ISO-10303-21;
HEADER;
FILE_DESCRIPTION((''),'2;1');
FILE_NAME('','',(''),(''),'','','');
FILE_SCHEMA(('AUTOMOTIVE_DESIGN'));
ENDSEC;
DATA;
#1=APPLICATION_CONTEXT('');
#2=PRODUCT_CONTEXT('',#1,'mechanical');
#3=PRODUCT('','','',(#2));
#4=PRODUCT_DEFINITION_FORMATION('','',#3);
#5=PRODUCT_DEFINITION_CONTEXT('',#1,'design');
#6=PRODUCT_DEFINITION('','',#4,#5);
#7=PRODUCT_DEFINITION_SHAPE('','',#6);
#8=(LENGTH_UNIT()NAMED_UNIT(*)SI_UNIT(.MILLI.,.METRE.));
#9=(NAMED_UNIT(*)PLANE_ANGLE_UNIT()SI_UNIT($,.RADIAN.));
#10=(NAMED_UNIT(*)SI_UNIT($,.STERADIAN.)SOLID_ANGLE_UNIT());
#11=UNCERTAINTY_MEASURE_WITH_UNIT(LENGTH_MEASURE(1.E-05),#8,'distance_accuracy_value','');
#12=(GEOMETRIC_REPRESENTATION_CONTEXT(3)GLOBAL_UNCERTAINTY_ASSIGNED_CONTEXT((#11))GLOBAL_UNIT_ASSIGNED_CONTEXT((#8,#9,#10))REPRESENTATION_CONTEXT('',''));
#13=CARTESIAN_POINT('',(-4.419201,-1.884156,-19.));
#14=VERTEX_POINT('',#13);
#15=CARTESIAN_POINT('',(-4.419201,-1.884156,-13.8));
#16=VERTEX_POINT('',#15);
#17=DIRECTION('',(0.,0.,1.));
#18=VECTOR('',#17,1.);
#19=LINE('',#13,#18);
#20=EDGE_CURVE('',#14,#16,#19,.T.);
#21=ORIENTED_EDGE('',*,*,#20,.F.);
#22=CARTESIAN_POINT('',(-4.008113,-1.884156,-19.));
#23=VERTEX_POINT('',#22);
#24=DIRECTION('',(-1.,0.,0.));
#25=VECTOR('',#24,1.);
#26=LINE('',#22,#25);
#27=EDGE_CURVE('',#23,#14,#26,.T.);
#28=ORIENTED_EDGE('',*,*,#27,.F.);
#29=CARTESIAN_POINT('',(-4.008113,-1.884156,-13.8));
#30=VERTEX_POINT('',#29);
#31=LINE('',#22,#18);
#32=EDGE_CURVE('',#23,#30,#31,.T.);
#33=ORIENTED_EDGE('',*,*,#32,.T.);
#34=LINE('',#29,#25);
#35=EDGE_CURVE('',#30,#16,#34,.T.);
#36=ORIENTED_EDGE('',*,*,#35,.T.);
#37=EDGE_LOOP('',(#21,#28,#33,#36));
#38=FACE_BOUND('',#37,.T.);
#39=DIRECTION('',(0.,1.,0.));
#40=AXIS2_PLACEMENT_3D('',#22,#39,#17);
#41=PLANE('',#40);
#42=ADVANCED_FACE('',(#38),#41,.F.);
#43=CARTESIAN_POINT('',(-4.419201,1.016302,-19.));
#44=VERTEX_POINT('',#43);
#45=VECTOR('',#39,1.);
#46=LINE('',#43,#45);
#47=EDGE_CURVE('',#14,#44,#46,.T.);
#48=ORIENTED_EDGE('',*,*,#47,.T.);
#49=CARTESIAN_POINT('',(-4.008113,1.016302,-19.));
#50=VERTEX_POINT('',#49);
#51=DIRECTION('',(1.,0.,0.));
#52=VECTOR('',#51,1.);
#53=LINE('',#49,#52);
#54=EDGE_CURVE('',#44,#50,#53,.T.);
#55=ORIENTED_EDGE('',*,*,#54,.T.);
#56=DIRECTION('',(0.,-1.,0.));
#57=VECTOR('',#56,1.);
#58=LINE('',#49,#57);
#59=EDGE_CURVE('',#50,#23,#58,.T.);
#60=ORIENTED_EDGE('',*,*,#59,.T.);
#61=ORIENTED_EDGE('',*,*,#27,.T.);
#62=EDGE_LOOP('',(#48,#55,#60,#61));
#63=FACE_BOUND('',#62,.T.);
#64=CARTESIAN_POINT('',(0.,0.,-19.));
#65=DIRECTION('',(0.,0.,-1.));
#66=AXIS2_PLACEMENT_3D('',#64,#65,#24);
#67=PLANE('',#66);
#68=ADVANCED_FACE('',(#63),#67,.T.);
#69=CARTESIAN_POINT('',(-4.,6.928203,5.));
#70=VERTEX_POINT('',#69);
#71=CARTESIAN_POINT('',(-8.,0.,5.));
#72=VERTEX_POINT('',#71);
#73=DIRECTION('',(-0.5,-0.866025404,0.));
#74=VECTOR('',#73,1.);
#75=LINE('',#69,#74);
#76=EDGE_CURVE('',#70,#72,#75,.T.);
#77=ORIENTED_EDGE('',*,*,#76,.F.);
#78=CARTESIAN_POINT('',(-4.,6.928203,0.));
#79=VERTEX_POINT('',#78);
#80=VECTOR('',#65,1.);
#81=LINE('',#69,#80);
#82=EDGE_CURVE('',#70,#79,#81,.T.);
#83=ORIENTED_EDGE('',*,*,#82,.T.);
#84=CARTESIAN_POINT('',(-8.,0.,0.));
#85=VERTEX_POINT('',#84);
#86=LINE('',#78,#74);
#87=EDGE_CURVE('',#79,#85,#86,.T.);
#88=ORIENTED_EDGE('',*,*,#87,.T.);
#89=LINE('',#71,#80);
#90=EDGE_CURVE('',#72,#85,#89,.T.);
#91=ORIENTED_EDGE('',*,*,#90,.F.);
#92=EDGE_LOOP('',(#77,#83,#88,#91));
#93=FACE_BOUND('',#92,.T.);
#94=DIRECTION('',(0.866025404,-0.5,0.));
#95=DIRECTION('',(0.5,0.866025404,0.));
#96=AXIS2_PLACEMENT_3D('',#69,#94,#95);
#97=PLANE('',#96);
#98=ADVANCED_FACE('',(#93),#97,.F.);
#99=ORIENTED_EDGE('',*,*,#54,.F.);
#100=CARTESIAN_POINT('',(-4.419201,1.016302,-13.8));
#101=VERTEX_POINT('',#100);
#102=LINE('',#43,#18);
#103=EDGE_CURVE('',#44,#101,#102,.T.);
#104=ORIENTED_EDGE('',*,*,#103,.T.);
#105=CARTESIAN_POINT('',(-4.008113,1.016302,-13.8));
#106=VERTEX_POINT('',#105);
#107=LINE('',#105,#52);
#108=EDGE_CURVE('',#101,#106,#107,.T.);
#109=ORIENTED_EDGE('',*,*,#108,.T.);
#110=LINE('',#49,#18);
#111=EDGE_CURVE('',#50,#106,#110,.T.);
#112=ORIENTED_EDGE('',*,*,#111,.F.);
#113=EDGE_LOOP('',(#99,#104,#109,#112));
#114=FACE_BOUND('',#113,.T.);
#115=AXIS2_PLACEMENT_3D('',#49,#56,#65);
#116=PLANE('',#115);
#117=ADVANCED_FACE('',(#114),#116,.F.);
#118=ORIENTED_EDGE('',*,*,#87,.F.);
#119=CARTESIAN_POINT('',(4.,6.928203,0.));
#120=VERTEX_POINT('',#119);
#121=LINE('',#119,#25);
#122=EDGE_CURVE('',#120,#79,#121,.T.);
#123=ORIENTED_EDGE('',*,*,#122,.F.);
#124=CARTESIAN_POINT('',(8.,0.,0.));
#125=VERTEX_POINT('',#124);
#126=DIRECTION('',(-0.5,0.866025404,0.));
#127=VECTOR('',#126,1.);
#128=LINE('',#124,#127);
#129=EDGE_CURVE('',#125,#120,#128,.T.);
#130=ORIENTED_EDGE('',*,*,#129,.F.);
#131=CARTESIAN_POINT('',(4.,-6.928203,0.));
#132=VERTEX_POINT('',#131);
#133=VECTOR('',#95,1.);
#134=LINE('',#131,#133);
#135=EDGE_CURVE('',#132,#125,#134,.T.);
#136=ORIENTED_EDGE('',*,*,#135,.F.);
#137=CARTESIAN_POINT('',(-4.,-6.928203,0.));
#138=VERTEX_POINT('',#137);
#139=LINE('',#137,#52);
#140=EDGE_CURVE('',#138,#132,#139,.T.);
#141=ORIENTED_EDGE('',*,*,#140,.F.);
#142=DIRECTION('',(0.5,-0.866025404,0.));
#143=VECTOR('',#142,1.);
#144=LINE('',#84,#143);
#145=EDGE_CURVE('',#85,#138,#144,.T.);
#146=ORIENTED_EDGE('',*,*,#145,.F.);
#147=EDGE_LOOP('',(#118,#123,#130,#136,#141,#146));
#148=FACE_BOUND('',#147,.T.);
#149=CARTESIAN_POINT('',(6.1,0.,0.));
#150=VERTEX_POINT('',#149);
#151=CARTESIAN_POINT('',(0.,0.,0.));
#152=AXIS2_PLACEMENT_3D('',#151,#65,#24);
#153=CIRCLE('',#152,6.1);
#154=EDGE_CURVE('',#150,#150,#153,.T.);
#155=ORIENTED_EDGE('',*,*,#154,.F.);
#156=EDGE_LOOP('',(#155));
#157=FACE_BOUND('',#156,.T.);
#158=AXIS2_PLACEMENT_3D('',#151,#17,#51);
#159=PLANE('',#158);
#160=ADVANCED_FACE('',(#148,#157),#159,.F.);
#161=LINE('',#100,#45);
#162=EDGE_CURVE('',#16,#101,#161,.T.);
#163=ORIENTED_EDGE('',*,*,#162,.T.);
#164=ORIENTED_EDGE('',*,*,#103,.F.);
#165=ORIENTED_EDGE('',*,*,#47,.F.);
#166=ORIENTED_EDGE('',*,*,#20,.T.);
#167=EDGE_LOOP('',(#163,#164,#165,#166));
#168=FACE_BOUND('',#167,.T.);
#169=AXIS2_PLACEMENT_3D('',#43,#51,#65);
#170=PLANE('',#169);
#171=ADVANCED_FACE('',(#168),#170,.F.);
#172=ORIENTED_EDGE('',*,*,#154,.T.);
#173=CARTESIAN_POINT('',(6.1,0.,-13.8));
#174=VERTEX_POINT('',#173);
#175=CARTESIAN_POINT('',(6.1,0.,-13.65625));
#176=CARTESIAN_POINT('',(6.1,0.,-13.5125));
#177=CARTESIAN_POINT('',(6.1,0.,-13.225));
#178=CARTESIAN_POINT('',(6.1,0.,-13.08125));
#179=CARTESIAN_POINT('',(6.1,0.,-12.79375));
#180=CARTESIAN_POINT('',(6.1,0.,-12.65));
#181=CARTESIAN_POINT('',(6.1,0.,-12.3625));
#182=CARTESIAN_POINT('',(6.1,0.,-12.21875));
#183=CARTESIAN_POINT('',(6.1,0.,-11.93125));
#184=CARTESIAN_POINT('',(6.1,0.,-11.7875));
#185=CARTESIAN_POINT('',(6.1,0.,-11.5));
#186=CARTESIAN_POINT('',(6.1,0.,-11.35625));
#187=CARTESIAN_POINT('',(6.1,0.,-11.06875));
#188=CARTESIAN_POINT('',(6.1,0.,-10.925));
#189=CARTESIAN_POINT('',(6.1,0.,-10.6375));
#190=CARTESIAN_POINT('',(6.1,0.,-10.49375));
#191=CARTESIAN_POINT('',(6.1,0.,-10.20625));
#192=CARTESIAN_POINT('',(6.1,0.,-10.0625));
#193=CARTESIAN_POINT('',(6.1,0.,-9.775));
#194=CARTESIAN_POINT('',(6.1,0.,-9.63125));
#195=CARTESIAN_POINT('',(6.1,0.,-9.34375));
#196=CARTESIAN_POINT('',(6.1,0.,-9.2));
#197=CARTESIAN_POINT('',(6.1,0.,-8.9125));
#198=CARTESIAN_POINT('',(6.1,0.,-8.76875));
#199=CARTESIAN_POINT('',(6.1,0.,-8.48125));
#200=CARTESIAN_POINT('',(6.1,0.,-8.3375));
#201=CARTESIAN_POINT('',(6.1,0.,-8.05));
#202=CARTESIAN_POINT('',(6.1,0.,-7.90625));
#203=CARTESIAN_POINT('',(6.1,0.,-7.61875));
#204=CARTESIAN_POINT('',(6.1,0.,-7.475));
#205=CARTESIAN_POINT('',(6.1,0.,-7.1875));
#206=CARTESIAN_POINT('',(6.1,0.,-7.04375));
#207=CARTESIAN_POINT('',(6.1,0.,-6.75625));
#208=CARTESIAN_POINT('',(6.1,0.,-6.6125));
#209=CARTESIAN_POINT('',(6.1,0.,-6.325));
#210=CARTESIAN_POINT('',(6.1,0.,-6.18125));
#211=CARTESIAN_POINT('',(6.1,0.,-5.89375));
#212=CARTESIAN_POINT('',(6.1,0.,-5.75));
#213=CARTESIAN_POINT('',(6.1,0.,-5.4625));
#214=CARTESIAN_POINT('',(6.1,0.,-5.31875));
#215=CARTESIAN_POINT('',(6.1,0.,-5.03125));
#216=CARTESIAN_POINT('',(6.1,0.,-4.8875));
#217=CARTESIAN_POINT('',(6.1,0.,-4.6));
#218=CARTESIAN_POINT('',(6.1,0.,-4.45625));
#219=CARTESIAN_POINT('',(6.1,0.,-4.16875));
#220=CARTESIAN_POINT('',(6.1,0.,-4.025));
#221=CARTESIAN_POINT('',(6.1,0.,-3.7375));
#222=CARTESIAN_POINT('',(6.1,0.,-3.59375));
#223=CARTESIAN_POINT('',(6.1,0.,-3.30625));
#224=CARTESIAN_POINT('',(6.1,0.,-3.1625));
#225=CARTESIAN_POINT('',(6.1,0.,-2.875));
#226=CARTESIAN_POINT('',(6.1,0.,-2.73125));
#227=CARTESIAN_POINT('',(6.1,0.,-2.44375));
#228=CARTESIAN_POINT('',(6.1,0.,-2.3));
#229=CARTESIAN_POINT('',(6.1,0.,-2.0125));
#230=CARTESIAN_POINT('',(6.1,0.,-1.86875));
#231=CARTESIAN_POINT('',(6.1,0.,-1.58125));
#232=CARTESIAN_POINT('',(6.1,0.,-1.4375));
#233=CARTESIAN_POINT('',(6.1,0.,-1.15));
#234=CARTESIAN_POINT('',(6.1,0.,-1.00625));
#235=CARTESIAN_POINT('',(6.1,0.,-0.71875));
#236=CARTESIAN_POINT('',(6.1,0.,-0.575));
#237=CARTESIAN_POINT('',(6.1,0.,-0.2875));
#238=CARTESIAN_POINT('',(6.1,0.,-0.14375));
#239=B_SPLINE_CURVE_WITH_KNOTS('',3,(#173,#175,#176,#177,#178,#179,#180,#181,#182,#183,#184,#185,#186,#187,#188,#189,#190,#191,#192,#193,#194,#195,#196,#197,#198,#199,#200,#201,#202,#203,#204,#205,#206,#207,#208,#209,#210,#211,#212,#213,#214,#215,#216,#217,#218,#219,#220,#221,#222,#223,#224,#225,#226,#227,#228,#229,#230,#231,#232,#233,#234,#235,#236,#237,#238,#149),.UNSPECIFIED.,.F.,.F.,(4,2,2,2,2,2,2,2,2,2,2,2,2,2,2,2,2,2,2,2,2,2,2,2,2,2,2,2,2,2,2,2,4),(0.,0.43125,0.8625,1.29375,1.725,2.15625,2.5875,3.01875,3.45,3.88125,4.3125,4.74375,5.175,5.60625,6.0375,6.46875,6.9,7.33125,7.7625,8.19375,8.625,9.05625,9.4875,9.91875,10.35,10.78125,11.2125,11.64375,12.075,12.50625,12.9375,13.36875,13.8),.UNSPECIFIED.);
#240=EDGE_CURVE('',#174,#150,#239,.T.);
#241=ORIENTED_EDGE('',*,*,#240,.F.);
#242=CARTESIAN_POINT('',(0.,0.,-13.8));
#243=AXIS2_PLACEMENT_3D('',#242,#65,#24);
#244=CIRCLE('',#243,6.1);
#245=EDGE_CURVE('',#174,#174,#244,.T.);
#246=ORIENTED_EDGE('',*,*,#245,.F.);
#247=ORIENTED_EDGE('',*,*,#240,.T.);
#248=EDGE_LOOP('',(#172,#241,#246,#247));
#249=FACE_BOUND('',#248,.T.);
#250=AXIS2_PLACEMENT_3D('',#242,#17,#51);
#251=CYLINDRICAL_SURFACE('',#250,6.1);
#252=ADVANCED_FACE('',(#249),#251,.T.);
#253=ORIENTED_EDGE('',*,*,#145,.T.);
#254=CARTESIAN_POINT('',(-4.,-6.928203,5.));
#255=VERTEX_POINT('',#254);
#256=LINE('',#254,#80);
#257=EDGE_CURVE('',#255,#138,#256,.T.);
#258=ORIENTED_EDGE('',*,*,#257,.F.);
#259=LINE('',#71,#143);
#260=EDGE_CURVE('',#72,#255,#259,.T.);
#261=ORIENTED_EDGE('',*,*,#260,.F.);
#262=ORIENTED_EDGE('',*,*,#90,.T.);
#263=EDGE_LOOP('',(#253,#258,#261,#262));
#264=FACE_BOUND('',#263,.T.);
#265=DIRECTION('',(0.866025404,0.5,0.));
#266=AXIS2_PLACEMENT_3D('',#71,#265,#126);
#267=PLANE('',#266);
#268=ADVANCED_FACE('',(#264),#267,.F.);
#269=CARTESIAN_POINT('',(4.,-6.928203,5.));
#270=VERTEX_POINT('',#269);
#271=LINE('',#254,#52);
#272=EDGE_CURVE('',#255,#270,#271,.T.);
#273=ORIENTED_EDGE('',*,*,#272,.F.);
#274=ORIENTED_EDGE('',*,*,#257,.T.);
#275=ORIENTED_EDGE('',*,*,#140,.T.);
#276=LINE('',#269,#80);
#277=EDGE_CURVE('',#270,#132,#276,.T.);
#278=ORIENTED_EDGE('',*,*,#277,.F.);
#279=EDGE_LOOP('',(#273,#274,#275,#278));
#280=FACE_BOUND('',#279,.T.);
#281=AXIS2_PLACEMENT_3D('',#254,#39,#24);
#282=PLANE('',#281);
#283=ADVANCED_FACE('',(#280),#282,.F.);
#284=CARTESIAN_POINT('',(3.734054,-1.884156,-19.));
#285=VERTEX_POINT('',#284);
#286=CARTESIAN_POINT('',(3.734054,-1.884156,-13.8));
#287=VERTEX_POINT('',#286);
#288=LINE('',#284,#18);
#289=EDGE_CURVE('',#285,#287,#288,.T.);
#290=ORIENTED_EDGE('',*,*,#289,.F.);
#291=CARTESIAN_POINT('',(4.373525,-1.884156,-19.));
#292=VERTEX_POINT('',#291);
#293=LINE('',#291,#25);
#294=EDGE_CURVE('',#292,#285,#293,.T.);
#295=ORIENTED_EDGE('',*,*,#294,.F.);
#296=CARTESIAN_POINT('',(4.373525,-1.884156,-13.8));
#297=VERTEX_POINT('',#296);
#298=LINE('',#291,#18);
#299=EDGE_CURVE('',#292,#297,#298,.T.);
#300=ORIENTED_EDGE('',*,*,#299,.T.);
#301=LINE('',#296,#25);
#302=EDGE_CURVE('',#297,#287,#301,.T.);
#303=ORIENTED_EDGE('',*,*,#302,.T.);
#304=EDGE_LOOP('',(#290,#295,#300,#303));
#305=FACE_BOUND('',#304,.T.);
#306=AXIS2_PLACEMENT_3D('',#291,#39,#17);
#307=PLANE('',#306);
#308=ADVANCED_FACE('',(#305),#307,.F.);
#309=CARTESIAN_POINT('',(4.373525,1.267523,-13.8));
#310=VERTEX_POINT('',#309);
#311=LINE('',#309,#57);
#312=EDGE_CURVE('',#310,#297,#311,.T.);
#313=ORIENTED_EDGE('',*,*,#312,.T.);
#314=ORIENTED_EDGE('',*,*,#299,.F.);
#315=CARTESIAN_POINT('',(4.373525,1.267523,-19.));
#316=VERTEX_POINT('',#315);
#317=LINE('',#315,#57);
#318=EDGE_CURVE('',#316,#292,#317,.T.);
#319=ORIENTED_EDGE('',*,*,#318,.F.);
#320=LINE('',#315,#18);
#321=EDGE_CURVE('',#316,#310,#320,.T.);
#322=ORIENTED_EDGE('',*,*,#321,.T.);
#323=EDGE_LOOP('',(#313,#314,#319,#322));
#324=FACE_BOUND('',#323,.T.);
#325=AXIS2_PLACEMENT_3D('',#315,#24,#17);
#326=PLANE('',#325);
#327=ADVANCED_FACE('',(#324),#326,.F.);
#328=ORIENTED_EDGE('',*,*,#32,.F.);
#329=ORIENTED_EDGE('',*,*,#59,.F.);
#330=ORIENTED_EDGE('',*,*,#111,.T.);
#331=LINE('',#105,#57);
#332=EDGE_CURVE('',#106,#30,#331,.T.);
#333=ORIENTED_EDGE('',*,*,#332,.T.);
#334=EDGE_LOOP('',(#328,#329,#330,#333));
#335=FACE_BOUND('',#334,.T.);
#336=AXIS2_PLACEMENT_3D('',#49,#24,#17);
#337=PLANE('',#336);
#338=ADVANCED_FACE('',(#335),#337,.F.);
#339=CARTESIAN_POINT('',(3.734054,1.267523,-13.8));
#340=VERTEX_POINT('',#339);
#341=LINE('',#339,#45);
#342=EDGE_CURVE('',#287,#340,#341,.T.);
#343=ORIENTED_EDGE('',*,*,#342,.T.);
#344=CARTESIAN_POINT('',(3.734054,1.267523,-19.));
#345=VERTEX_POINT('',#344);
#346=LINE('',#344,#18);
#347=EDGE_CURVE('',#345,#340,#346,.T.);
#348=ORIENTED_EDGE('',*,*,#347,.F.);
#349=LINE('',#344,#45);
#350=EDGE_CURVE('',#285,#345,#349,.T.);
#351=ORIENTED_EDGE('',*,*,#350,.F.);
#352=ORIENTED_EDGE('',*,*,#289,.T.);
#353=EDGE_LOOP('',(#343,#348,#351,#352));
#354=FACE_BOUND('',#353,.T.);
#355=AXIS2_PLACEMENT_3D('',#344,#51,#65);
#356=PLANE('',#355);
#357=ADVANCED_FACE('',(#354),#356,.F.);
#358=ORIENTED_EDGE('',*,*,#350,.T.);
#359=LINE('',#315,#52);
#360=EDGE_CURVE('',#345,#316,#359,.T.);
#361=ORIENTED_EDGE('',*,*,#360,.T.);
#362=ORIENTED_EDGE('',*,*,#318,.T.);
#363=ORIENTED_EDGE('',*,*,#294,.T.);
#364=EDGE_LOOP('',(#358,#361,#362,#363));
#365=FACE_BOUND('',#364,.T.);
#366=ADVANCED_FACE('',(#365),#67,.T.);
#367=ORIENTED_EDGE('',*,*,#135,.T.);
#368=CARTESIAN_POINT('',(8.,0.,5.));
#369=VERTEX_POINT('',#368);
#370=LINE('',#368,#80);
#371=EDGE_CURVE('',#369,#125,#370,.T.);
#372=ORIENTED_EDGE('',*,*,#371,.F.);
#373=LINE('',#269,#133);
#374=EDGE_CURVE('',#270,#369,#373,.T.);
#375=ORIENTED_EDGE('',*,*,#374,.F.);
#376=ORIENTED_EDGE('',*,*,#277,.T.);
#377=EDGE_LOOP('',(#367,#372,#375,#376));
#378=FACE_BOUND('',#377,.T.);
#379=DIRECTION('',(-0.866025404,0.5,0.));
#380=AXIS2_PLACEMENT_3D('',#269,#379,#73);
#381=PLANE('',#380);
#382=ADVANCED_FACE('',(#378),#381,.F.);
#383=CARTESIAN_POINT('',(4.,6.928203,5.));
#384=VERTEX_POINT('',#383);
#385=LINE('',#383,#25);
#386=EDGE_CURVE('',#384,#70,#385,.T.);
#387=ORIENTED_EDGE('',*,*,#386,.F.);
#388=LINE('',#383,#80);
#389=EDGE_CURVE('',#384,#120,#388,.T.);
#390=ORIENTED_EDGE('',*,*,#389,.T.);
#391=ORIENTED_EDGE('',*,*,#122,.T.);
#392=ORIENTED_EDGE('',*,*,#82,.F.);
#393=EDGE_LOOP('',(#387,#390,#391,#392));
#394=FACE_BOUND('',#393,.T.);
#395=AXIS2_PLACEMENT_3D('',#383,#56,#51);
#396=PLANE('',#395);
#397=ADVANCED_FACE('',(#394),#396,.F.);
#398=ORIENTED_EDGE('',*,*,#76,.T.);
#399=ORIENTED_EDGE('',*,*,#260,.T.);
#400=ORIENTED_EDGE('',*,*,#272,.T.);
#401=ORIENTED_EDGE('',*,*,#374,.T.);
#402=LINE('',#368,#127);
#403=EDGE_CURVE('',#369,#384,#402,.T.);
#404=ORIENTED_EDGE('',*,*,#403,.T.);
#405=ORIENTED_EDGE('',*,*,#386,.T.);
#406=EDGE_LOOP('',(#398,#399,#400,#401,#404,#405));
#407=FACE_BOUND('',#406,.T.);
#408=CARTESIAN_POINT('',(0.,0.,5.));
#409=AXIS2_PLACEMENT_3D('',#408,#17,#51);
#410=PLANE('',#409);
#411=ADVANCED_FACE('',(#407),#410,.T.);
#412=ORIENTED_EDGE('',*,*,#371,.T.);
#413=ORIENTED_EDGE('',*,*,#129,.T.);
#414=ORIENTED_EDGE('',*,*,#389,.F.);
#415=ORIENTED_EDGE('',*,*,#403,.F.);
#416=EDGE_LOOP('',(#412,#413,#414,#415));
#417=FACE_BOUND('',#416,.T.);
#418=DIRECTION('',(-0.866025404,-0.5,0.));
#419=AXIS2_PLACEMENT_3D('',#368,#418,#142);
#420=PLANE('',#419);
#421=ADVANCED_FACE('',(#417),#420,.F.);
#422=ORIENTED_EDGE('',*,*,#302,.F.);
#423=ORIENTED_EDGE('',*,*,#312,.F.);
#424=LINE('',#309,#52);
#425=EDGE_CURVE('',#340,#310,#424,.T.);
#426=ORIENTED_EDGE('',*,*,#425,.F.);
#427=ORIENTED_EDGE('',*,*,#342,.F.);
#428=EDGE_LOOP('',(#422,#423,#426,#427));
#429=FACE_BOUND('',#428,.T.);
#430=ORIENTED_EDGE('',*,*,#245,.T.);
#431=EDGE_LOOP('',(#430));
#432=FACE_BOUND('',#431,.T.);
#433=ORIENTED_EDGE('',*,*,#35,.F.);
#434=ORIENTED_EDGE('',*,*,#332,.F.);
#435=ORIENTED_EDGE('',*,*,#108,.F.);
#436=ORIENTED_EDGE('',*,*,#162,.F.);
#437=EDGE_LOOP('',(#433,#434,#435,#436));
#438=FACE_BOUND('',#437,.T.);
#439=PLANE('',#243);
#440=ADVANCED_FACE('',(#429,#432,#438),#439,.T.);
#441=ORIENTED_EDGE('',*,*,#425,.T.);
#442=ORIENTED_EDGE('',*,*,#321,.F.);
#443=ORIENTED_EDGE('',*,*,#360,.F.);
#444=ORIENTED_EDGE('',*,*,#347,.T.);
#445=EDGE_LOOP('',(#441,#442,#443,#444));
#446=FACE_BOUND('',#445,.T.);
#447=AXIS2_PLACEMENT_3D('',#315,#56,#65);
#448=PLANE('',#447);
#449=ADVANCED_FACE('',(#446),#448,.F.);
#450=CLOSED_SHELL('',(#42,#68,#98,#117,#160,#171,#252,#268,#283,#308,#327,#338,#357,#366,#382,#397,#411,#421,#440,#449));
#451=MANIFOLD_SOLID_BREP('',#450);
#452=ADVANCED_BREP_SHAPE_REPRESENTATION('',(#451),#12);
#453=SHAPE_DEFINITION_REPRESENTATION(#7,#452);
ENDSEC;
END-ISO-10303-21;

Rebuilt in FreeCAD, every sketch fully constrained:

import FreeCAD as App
import Part
import Sketcher
from FreeCAD import Vector
Q = App.Units.Quantity


def add_polygon(sketch, points):
    """Adds a closed chain of lines whose ends are joined by coincident constraints."""
    first, n = sketch.GeometryCount, len(points)
    for a, b in zip(points, points[1:] + points[:1]):
        sketch.addGeometry(Part.LineSegment(App.Vector(*a, 0), App.Vector(*b, 0)), False)
    for i in range(n):
        sketch.addConstraint(Sketcher.Constraint("Coincident", first + i, 2, first + (i + 1) % n, 1))

doc = App.newDocument("Part")
body = doc.addObject("PartDesign::Body", "Body")

sketch1 = doc.addObject("Sketcher::SketchObject", "Sketch")
body.addObject(sketch1)
sketch1.AttachmentSupport = (doc.XY_Plane, [""])
sketch1.MapMode = "FlatFace"
add_polygon(sketch1, [(8, 0), (4, 7), (-4, 7), (-8, 0), (-4, -7), (4, -7)])
sketch1.addConstraint([
    Sketcher.Constraint("Horizontal", 1),
    Sketcher.Constraint("Horizontal", 4),
    Sketcher.Constraint("Symmetric", 0, 2, 3, 2, -1, 1),
    Sketcher.Constraint("Symmetric", 2, 2, 5, 2, -1, 1),
    Sketcher.Constraint("PointOnObject", 2, 2, -1),
    Sketcher.Constraint("Parallel", 2, 5),
    Sketcher.Constraint("Vertical", 1, 2, 3, 2),
    Sketcher.Constraint("DistanceX", 1, 2, 1, 1, Q("8 mm")),
    Sketcher.Constraint("Angle", 0, Q("120 deg")),
    Sketcher.Constraint("Distance", 0, Q("8 mm")),
])
pad1 = doc.addObject("PartDesign::Pad", "Pad")
body.addObject(pad1)
pad1.Profile = sketch1
pad1.Length = 5

sketch2 = doc.addObject("Sketcher::SketchObject", "Sketch001")
body.addObject(sketch2)
sketch2.AttachmentSupport = (doc.XY_Plane, [""])
sketch2.MapMode = "FlatFace"
sketch2.addGeometry(Part.Circle(Vector(0, 0, 0), Vector(0, 0, 1), 6), False)
sketch2.addConstraint([
    Sketcher.Constraint("Coincident", 0, 3, -1, 1),
    Sketcher.Constraint("Diameter", 0, Q("12.2 mm")),
])
pad2 = doc.addObject("PartDesign::Pad", "Pad001")
body.addObject(pad2)
pad2.Profile = sketch2
pad2.Length = 13.8
pad2.Reversed = True

sketch3 = doc.addObject("Sketcher::SketchObject", "Sketch002")
body.addObject(sketch3)
sketch3.AttachmentSupport = (doc.XY_Plane, [""])
sketch3.MapMode = "FlatFace"
sketch3.AttachmentOffset = App.Placement(Vector(0, 0, -13.8), App.Rotation())
add_polygon(sketch3, [(4.37, 1.27), (4.37, -1.88), (3.73, -1.88), (3.73, 1.27)])
add_polygon(sketch3, [(-4.01, 1.02), (-4.01, -1.88), (-4.42, -1.88), (-4.42, 1.02)])
sketch3.addConstraint([
    Sketcher.Constraint("Vertical", 0),
    Sketcher.Constraint("Horizontal", 1),
    Sketcher.Constraint("Vertical", 2),
    Sketcher.Constraint("Horizontal", 3),
    Sketcher.Constraint("Vertical", 4),
    Sketcher.Constraint("Horizontal", 5),
    Sketcher.Constraint("Vertical", 6),
    Sketcher.Constraint("Horizontal", 7),
    Sketcher.Constraint("Horizontal", 1, 2, 4, 2),
    Sketcher.Constraint("DistanceX", 1, 2, 1, 1, Q("0.639471 mm")),
    Sketcher.Constraint("DistanceX", 5, 2, 5, 1, Q("0.411088 mm")),
    Sketcher.Constraint("DistanceY", 0, 2, 0, 1, Q("3.151678 mm")),
    Sketcher.Constraint("DistanceX", 5, 2, -1, 1, Q("4.419201 mm")),
    Sketcher.Constraint("DistanceY", 4, 2, 4, 1, Q("2.900458 mm")),
    Sketcher.Constraint("DistanceX", -1, 1, 0, 2, Q("4.373525 mm")),
    Sketcher.Constraint("DistanceY", 0, 2, -1, 1, Q("1.884156 mm")),
])
pad3 = doc.addObject("PartDesign::Pad", "Pad002")
body.addObject(pad3)
pad3.Profile = sketch3
pad3.Length = 5.2
pad3.Reversed = True

doc.recompute()
